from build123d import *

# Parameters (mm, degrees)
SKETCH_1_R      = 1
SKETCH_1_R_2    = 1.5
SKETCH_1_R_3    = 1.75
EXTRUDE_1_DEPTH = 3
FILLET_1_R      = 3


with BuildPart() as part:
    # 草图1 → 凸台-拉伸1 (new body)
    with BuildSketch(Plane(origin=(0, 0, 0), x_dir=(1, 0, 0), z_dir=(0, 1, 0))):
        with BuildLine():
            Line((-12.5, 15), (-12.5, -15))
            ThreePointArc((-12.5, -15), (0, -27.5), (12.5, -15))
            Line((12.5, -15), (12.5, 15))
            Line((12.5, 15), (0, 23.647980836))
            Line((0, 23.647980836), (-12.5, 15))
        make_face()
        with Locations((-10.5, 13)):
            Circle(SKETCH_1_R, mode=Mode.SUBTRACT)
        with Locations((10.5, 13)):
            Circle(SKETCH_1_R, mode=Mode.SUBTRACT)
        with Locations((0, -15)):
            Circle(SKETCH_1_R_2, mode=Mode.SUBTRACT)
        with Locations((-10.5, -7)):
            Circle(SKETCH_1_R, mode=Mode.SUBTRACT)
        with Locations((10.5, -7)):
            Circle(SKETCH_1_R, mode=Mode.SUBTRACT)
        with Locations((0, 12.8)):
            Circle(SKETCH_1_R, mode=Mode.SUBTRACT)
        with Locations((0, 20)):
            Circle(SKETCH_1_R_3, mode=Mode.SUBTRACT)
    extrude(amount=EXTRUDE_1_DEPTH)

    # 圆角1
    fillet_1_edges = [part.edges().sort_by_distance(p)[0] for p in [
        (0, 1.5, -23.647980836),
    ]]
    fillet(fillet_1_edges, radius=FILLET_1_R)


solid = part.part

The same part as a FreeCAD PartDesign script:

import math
import FreeCAD as App
import Part
import Sketcher

V = App.Vector
Q = App.Units.Quantity


def edges_at(feature, points):
    """Names of the edges that pass closest to the given points."""
    edges = feature.Shape.Edges
    near = lambda p: min(range(len(edges)), key=lambda i: edges[i].distToShape(Part.Vertex(*p))[0])
    return sorted({f"Edge{near(p) + 1}" for p in points})

doc = App.newDocument("Part")
body = doc.addObject("PartDesign::Body", "Body")

sketch1 = doc.addObject("Sketcher::SketchObject", "Sketch")
body.addObject(sketch1)
sketch1.AttachmentSupport = (doc.XZ_Plane, [""])
sketch1.MapMode = "FlatFace"
sketch1.addGeometry([
    Part.LineSegment(V(-12.5, -15, 0), V(-12.5, 15, 0)),
    Part.ArcOfCircle(Part.Circle(V(0, 15, 0), V(0, 0, 1), 12.5), math.radians(0), math.radians(180)),
    Part.LineSegment(V(12.5, 15, 0), V(12.5, -15, 0)),
    Part.LineSegment(V(12.5, -15, 0), V(0, -23.6, 0)),
    Part.LineSegment(V(0, -23.6, 0), V(-12.5, -15, 0)),
    Part.Circle(V(-10.5, 7, 0), V(0, 0, 1), 1),
    Part.Circle(V(0, 15, 0), V(0, 0, 1), 1.5),
    Part.Circle(V(10.5, 7, 0), V(0, 0, 1), 1),
    Part.Circle(V(-10.5, -13, 0), V(0, 0, 1), 1),
    Part.Circle(V(0, -12.8, 0), V(0, 0, 1), 1),
    Part.Circle(V(0, -20, 0), V(0, 0, 1), 1.8),
    Part.Circle(V(10.5, -13, 0), V(0, 0, 1), 1),
], False)
sketch1.addConstraint([
    Sketcher.Constraint("Tangent", 0, 2, 1, 2),
    Sketcher.Constraint("Tangent", 1, 1, 2, 1),
    Sketcher.Constraint("Coincident", 2, 2, 3, 1),
    Sketcher.Constraint("Coincident", 3, 2, 4, 1),
    Sketcher.Constraint("Coincident", 4, 2, 0, 1),
    Sketcher.Constraint("Vertical", 0),
    Sketcher.Constraint("Vertical", 2),
    Sketcher.Constraint("Coincident", 6, 3, 1, 3),
    Sketcher.Constraint("Equal", 5, 7),
    Sketcher.Constraint("Equal", 7, 8),
    Sketcher.Constraint("Equal", 8, 9),
    Sketcher.Constraint("Equal", 9, 11),
    Sketcher.Constraint("Symmetric", 0, 2, 2, 2, -1, 1),
    Sketcher.Constraint("Symmetric", 5, 3, 7, 3, -2),
    Sketcher.Constraint("Symmetric", 8, 3, 11, 3, -2),
    Sketcher.Constraint("PointOnObject", 9, 3, -2),
    Sketcher.Constraint("PointOnObject", 10, 3, -2),
    Sketcher.Constraint("PointOnObject", 3, 2, -2),
    Sketcher.Constraint("Horizontal", 2, 2, 4, 2),
    Sketcher.Constraint("Vertical", 5, 3, 8, 3),
    Sketcher.Constraint("Diameter", 5, Q("2 mm")),
    Sketcher.Constraint("Diameter", 6, Q("3 mm")),
    Sketcher.Constraint("Diameter", 10, Q("3.5 mm")),
    Sketcher.Constraint("Radius", 1, Q("12.5 mm")),
    Sketcher.Constraint("DistanceY", 0, 1, 0, 2, Q("30 mm")),
    Sketcher.Constraint("DistanceY", -1, 1, 5, 3, Q("7 mm")),
    Sketcher.Constraint("DistanceY", 8, 3, -1, 1, Q("13 mm")),
    Sketcher.Constraint("DistanceY", 10, 3, -1, 1, Q("20 mm")),
    Sketcher.Constraint("DistanceX", 5, 3, 7, 3, Q("21 mm")),
    Sketcher.Constraint("DistanceY", 9, 3, -1, 1, Q("12.8 mm")),
    Sketcher.Constraint("Distance", 3, Q("15.19992 mm")),
])
pad1 = doc.addObject("PartDesign::Pad", "Pad")
body.addObject(pad1)
pad1.Profile = sketch1
pad1.Length = 3
pad1.Reversed = True
doc.recompute()

fillet = doc.addObject("PartDesign::Fillet", "Fillet")
body.addObject(fillet)
fillet.Base = (pad1, edges_at(pad1, [(0, 1.5, -23.648)]))
fillet.Radius = 3

doc.recompute()
